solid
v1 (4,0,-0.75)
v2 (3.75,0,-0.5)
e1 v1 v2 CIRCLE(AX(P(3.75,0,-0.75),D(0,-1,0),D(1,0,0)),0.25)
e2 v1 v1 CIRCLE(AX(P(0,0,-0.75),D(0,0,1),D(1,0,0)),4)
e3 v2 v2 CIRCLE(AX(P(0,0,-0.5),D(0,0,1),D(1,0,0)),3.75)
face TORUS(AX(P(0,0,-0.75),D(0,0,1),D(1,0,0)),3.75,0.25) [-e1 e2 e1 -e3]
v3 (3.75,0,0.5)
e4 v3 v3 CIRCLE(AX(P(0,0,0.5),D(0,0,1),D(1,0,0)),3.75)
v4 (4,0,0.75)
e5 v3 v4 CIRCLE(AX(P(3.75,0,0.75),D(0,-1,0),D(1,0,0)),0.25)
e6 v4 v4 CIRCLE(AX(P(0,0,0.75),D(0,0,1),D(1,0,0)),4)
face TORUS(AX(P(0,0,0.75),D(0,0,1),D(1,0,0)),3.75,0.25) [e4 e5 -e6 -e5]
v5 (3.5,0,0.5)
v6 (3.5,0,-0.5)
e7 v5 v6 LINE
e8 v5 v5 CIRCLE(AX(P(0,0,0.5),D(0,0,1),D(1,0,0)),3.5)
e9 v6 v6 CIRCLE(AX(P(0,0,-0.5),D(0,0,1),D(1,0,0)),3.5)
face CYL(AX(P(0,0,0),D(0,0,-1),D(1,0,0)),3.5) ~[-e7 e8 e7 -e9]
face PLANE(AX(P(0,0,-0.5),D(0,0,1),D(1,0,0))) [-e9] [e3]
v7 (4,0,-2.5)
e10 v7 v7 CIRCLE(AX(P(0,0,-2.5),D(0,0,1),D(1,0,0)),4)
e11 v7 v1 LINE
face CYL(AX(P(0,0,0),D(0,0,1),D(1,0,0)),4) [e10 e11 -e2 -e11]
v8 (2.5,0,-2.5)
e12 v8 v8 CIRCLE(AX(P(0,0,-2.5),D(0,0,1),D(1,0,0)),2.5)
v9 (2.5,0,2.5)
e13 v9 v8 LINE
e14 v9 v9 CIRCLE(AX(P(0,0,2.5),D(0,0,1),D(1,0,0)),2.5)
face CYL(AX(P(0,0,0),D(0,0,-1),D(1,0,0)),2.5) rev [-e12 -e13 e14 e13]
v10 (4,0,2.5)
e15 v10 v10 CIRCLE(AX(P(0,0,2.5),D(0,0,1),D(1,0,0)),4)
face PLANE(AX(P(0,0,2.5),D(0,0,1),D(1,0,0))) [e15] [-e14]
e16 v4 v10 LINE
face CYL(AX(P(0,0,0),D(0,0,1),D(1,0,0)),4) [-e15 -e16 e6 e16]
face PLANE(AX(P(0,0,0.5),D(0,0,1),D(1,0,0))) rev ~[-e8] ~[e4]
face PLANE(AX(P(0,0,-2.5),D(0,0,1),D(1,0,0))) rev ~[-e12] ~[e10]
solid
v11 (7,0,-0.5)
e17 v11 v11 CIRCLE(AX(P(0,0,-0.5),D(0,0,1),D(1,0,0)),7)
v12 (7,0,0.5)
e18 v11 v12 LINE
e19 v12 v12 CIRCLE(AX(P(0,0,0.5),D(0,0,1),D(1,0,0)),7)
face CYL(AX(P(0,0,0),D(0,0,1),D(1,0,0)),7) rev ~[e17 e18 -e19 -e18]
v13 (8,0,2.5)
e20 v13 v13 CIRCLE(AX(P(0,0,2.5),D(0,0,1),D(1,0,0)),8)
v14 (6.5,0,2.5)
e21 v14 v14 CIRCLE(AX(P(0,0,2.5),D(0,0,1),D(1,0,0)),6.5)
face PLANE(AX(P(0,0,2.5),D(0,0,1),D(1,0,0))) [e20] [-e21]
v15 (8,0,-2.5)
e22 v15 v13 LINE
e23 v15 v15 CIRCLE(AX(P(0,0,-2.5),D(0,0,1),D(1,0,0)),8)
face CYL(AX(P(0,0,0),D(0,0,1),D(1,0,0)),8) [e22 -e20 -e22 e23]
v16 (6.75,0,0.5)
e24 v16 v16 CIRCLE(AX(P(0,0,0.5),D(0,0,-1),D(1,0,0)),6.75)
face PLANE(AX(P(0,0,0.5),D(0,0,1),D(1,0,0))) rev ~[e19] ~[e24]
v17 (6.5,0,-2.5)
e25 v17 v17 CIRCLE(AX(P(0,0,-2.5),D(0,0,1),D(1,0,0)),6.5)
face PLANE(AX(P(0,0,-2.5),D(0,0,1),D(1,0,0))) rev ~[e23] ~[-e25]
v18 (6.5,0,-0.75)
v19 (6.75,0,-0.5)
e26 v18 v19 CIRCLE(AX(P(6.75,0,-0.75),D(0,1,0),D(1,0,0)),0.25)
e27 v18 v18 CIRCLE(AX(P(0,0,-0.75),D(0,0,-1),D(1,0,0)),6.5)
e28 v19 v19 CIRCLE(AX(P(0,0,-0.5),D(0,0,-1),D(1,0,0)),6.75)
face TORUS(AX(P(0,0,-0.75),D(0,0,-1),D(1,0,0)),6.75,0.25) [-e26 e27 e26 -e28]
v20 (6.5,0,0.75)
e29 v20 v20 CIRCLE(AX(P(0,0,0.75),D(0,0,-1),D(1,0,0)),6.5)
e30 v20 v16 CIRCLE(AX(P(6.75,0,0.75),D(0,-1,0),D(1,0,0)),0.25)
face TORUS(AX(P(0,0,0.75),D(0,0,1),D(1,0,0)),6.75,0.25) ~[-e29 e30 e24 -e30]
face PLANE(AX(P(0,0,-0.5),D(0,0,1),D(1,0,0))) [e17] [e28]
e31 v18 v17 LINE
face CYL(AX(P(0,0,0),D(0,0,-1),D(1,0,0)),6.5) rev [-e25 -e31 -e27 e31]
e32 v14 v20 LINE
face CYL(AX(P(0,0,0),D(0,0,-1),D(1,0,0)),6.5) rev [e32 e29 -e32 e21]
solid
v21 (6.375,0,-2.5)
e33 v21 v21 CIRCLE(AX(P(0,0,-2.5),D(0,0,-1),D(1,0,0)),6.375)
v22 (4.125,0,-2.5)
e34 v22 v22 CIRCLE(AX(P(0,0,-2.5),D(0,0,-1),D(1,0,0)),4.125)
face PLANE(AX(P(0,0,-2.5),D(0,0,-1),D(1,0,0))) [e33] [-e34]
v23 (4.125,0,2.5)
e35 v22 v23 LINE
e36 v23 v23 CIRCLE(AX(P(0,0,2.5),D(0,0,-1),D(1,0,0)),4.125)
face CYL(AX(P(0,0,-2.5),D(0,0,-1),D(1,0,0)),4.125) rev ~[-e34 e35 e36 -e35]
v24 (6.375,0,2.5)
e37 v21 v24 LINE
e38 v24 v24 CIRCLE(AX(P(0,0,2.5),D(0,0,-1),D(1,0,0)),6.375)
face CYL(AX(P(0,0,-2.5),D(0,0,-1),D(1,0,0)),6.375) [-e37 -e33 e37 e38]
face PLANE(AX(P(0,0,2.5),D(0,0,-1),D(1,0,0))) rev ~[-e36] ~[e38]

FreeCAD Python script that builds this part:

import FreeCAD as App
import Part
import Sketcher
from FreeCAD import Vector


def edges_at(feature, points):
    """Names of the edges that pass closest to the given points."""
    edges = feature.Shape.Edges
    near = lambda p: min(range(len(edges)), key=lambda i: edges[i].distToShape(Part.Vertex(*p))[0])
    return sorted({f"Edge{near(p) + 1}" for p in points})

doc = App.newDocument("Part")
body = doc.addObject("PartDesign::Body", "Body")

sketch1 = body.newObject("Sketcher::SketchObject", "Sketch")
sketch1.AttachmentSupport = (doc.getObject("XY_Plane"), [""])
sketch1.MapMode = "FlatFace"
sketch1.addGeometry([
    Part.Circle(Vector(0, 0, 0), Vector(0, 0, 1), 8),
    Part.Circle(Vector(0, 0, 0), Vector(0, 0, 1), 6),
], False)
sketch1.addConstraint([
    Sketcher.Constraint("Coincident", 0, 3, -1, 1),
    Sketcher.Constraint("Coincident", 1, 3, -1, 1),
    Sketcher.Constraint("Diameter", 0, 16.0),
    Sketcher.Constraint("Diameter", 1, 13.0),
])
pad1 = body.newObject("PartDesign::Pad", "Pad")
pad1.Profile = sketch1
pad1.Length = 5
pad1.Midplane = True
body2 = doc.addObject("PartDesign::Body", "Body001")

sketch2 = body2.newObject("Sketcher::SketchObject", "Sketch001")
sketch2.AttachmentSupport = (doc.getObject("XY_Plane001"), [""])
sketch2.MapMode = "FlatFace"
sketch2.addGeometry([
    Part.Circle(Vector(0, 0, 0), Vector(0, 0, 1), 4),
    Part.Circle(Vector(0, 0, 0), Vector(0, 0, 1), 2.5),
], False)
sketch2.addConstraint([
    Sketcher.Constraint("Coincident", 0, 3, -1, 1),
    Sketcher.Constraint("Coincident", 1, 3, -1, 1),
    Sketcher.Constraint("Diameter", 0, 8.0),
    Sketcher.Constraint("Diameter", 1, 5.0),
])
pad2 = body2.newObject("PartDesign::Pad", "Pad001")
pad2.Profile = sketch2
pad2.Length = 5
pad2.Midplane = True
body3 = doc.addObject("PartDesign::Body", "Body002")

sketch3 = body3.newObject("Sketcher::SketchObject", "Sketch002")
sketch3.AttachmentSupport = (doc.getObject("XY_Plane002"), [""])
sketch3.MapMode = "FlatFace"
sketch3.addGeometry([
    Part.Circle(Vector(0, 0, 0), Vector(0, 0, 1), 7),
    Part.Circle(Vector(0, 0, 0), Vector(0, 0, 1), 3.5),
], False)
sketch3.addConstraint([
    Sketcher.Constraint("Coincident", 0, 3, -1, 1),
    Sketcher.Constraint("Coincident", 1, 3, -1, 1),
    Sketcher.Constraint("Diameter", 0, 14.0),
    Sketcher.Constraint("Diameter", 1, 7.0),
])
pad3 = body3.newObject("PartDesign::Pad", "Pad002")
pad3.Profile = sketch3
pad3.Length = 1
pad3.Midplane = True
doc.recompute()

body4 = doc.addObject("PartDesign::Body", "Body003")
body4.BaseFeature = body3
boolean = body.newObject("PartDesign::Boolean", "Boolean")
boolean.Type = "Cut"
boolean.addObjects([body4])
doc.recompute()

fillet = body.newObject("PartDesign::Fillet", "Fillet")
fillet.Base = (boolean, edges_at(boolean, [(-6.5, 0, 0.5), (-6.5, 0, -0.5)]))
fillet.Radius = 0.25
doc.recompute()

boolean2 = body2.newObject("PartDesign::Boolean", "Boolean001")
boolean2.Type = "Cut"
boolean2.addObjects([body3])
doc.recompute()

fillet2 = body2.newObject("PartDesign::Fillet", "Fillet001")
fillet2.Base = (boolean2, edges_at(boolean2, [(-4, 0, -0.5), (-4, 0, 0.5)]))
fillet2.Radius = 0.25
body5 = doc.addObject("PartDesign::Body", "Body004")

sketch4 = body5.newObject("Sketcher::SketchObject", "Sketch003")
sketch4.AttachmentSupport = (doc.getObject("XY_Plane004"), [""])
sketch4.MapMode = "FlatFace"
sketch4.AttachmentOffset = App.Placement(Vector(0, 0, -2.5), App.Rotation())
sketch4.addGeometry([
    Part.Circle(Vector(0, 0, 0), Vector(0, 0, 1), 6.4),
    Part.Circle(Vector(0, 0, 0), Vector(0, 0, 1), 4.1),
], False)
sketch4.addConstraint([
    Sketcher.Constraint("Coincident", 0, 3, -1, 1),
    Sketcher.Constraint("Coincident", 1, 3, -1, 1),
    Sketcher.Constraint("Diameter", 0, 12.75),
    Sketcher.Constraint("Diameter", 1, 8.25),
])
pad4 = body5.newObject("PartDesign::Pad", "Pad003")
pad4.Profile = sketch4
pad4.Length = 5

doc.recompute()
